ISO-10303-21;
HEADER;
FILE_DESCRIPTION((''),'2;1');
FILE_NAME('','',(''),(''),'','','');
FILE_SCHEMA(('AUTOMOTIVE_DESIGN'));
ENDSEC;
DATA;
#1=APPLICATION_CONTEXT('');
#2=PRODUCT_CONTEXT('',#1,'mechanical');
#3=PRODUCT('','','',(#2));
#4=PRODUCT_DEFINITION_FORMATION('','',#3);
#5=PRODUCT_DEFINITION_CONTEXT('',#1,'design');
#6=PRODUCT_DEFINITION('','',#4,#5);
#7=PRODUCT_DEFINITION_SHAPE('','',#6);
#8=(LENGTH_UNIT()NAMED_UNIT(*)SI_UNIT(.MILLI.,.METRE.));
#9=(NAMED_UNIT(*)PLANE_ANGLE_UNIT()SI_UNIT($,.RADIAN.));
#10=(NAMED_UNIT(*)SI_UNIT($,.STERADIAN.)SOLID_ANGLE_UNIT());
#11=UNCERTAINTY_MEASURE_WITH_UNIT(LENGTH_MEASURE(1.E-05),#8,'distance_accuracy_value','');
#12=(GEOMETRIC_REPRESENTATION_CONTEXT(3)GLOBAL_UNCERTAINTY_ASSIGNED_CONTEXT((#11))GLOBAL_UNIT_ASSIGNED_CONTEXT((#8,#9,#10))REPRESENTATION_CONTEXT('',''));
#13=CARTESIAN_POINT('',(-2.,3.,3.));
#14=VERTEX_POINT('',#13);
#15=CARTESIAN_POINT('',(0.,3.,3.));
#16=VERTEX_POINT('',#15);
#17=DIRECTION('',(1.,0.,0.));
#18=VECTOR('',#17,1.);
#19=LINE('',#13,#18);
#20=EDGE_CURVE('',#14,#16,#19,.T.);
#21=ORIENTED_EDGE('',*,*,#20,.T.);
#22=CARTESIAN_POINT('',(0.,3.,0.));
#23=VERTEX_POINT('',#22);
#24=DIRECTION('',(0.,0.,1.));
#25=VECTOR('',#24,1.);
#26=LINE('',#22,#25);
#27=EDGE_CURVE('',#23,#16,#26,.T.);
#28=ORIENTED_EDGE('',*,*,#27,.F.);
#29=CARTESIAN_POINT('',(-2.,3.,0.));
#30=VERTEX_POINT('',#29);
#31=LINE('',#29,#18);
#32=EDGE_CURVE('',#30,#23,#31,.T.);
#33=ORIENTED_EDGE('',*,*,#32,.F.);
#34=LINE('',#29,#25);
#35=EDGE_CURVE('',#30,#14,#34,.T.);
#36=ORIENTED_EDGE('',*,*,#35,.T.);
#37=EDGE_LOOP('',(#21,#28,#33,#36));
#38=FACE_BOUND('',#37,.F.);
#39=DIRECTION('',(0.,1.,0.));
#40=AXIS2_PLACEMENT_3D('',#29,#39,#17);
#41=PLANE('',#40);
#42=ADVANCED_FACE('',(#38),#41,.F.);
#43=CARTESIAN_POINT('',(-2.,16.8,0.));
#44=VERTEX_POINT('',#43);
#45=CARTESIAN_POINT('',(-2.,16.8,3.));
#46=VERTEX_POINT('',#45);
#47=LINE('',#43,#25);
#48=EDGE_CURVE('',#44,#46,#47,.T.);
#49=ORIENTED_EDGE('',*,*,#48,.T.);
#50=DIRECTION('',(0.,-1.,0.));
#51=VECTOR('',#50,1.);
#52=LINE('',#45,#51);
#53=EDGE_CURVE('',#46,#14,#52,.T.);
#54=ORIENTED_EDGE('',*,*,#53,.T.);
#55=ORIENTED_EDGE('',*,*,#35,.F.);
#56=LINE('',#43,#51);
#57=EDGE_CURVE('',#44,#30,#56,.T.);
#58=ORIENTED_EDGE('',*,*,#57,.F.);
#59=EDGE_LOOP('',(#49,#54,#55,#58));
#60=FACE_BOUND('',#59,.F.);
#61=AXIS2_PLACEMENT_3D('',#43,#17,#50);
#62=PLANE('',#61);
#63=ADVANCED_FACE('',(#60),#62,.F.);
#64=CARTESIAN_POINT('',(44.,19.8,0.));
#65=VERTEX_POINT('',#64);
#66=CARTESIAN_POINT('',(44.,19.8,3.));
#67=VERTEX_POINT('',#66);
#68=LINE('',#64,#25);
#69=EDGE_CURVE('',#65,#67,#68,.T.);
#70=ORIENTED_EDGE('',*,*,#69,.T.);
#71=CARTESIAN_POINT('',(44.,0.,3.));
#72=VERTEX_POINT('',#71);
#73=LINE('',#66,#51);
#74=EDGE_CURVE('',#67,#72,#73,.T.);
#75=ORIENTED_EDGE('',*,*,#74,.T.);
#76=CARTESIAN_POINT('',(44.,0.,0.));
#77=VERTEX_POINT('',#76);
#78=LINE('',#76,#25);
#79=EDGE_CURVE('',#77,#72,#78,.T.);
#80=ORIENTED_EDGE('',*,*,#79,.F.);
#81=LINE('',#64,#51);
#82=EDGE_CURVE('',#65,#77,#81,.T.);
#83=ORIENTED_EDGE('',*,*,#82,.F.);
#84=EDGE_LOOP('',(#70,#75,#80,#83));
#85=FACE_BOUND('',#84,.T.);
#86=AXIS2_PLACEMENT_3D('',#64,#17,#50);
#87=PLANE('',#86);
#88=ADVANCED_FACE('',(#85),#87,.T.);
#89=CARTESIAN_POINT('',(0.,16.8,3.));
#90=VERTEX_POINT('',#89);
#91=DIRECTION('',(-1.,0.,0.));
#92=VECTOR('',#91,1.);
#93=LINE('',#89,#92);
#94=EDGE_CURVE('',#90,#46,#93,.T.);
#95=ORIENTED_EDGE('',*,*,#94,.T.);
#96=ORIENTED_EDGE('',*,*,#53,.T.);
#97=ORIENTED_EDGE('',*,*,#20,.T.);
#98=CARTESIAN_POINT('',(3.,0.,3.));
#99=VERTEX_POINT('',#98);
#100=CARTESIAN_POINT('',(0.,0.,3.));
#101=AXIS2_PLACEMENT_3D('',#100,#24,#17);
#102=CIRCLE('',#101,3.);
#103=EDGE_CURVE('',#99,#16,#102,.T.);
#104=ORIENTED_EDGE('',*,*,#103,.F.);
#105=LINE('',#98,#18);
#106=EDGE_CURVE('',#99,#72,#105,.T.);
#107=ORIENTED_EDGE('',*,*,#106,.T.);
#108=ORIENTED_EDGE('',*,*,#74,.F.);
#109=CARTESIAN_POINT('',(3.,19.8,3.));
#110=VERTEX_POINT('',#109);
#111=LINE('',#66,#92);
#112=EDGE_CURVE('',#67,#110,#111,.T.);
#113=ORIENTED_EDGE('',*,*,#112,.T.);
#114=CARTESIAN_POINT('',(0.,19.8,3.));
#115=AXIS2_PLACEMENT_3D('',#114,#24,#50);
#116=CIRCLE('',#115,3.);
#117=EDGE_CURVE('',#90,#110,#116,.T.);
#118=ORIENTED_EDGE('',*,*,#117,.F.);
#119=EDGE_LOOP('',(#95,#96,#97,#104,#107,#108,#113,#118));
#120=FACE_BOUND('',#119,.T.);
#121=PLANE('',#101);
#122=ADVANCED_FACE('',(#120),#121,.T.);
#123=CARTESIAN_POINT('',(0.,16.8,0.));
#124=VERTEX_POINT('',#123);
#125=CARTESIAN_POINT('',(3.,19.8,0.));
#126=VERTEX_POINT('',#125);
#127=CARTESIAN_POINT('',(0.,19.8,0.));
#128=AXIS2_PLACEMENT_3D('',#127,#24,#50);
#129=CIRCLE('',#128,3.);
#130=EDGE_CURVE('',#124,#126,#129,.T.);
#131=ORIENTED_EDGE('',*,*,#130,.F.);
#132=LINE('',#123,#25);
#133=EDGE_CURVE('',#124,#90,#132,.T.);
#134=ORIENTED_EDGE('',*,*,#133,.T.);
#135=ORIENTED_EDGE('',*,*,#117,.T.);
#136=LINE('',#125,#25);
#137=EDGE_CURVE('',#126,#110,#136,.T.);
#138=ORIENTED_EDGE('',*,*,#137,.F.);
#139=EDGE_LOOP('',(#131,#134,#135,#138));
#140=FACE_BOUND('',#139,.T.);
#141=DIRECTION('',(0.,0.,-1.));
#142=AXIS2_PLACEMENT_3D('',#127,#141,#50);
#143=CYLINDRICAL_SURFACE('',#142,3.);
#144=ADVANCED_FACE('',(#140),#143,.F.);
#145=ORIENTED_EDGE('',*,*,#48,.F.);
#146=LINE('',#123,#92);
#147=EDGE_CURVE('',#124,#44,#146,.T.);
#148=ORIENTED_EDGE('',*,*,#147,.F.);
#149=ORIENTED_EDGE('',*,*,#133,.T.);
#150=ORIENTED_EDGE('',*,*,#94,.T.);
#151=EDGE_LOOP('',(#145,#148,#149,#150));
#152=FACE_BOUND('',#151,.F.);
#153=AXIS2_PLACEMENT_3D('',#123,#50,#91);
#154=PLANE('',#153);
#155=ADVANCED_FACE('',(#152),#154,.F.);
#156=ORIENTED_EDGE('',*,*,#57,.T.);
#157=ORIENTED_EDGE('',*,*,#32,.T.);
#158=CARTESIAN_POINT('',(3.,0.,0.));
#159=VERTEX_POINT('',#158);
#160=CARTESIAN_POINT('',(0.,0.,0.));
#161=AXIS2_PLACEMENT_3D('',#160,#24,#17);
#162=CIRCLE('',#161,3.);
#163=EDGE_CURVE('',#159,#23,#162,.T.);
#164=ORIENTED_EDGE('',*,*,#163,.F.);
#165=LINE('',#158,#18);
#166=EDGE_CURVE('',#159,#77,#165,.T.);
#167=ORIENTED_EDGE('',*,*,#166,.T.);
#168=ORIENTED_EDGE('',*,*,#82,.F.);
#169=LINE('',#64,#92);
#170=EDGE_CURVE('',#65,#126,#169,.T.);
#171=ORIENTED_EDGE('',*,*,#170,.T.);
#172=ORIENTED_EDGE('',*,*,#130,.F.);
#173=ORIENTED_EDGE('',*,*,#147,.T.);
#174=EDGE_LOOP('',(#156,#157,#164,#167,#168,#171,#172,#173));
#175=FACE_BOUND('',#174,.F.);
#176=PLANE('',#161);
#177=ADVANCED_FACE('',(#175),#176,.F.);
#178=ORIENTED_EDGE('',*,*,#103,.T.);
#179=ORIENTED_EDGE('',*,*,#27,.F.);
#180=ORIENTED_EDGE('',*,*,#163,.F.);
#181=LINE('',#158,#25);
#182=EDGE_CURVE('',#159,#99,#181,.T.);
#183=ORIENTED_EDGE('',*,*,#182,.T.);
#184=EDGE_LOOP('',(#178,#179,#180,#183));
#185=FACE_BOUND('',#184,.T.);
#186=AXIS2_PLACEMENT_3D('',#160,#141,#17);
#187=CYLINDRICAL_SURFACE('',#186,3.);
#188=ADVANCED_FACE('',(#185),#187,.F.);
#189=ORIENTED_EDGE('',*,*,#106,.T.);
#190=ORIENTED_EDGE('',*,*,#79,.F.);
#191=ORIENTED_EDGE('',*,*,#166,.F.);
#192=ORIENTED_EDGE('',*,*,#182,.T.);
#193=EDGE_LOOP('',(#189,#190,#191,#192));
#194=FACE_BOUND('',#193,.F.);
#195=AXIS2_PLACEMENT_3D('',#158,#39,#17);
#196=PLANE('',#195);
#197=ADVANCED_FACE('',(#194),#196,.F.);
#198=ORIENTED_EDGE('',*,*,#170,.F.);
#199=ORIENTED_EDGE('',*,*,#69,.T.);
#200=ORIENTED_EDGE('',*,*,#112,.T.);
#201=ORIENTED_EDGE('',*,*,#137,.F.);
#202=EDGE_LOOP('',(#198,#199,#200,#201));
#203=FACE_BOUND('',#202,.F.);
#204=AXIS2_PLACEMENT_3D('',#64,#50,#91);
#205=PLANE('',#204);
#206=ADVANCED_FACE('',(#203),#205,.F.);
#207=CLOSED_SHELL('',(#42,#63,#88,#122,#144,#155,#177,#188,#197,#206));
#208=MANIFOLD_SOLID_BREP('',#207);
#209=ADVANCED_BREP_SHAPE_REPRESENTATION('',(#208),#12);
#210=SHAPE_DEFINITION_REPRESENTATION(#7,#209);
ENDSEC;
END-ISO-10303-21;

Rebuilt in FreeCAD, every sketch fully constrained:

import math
import FreeCAD as App
import Part
import Sketcher
from FreeCAD import Vector

doc = App.newDocument("Part")
params = doc.addObject("Spreadsheet::Sheet", "Params")
for row, (alias, value) in enumerate([
    ("sketch1_radius", "3 mm"),
    ("sketch1_width", "2 mm"),
    ("sketch1_height", "19.8 mm"),
    ("sketch1_width2", "41 mm"),
    ("pad1_length", "3 mm"),
], start=1):
    params.set(f"A{row}", alias)
    params.set(f"B{row}", "=" + value)
    params.setAlias(f"B{row}", alias)

body = doc.addObject("PartDesign::Body", "Body")

# Sketch on XY plane
sketch1 = doc.addObject("Sketcher::SketchObject", "Sketch")
body.addObject(sketch1)
sketch1.AttachmentSupport = (doc.XY_Plane, [""])
sketch1.MapMode = "FlatFace"
sketch1.addGeometry([
    Part.ArcOfCircle(Part.Circle(Vector(0, 0, 0), Vector(0, 0, 1), 3), math.radians(0), math.radians(90)),  # 0
    Part.LineSegment(Vector(3, 0, 0), Vector(44, 0, 0)),  # 1
    Part.LineSegment(Vector(44, 0, 0), Vector(44, 19.8, 0)),  # 2
    Part.LineSegment(Vector(44, 19.8, 0), Vector(3, 19.8, 0)),  # 3
    Part.ArcOfCircle(Part.Circle(Vector(0, 19.8, 0), Vector(0, 0, 1), 3), math.radians(-90), math.radians(0)),  # 4
    Part.LineSegment(Vector(0, 16.8, 0), Vector(-2, 16.8, 0)),  # 5
    Part.LineSegment(Vector(-2, 16.8, 0), Vector(-2, 3, 0)),  # 6
    Part.LineSegment(Vector(-2, 3, 0), Vector(0, 3, 0)),  # 7
], False)
sketch1.addConstraint([
    Sketcher.Constraint("Coincident", 0, 1, 1, 1),
    Sketcher.Constraint("Coincident", 1, 2, 2, 1),
    Sketcher.Constraint("Coincident", 2, 2, 3, 1),
    Sketcher.Constraint("Coincident", 3, 2, 4, 2),
    Sketcher.Constraint("Tangent", 4, 1, 5, 1),
    Sketcher.Constraint("Coincident", 5, 2, 6, 1),
    Sketcher.Constraint("Coincident", 6, 2, 7, 1),
    Sketcher.Constraint("Tangent", 7, 2, 0, 2),
    Sketcher.Constraint("Horizontal", 1),
    Sketcher.Constraint("Vertical", 2),
    Sketcher.Constraint("Horizontal", 3),
    Sketcher.Constraint("Horizontal", 5),
    Sketcher.Constraint("Vertical", 6),
    Sketcher.Constraint("Horizontal", 7),
    Sketcher.Constraint("Coincident", 0, 3, -1, 1),
    Sketcher.Constraint("Equal", 0, 4),
    Sketcher.Constraint("PointOnObject", 4, 3, -2),
    Sketcher.Constraint("PointOnObject", 0, 1, -1),
    Sketcher.Constraint("Horizontal", 4, 3, 2, 2),
    Sketcher.Constraint("Radius", 0, 3.0),
    Sketcher.Constraint("DistanceX", 5, 2, 5, 1, 2.0),
    Sketcher.Constraint("DistanceY", 2, 1, 2, 2, 19.8),
    Sketcher.Constraint("DistanceX", 1, 1, 1, 2, 41.0),
])
sketch1.setExpression("Constraints[19]", "Params.sketch1_radius")
sketch1.setExpression("Constraints[20]", "Params.sketch1_width")
sketch1.setExpression("Constraints[21]", "Params.sketch1_height")
sketch1.setExpression("Constraints[22]", "Params.sketch1_width2")
pad1 = doc.addObject("PartDesign::Pad", "Pad")
body.addObject(pad1)
pad1.Profile = sketch1
pad1.setExpression("Length", "Params.pad1_length")

doc.recompute()
